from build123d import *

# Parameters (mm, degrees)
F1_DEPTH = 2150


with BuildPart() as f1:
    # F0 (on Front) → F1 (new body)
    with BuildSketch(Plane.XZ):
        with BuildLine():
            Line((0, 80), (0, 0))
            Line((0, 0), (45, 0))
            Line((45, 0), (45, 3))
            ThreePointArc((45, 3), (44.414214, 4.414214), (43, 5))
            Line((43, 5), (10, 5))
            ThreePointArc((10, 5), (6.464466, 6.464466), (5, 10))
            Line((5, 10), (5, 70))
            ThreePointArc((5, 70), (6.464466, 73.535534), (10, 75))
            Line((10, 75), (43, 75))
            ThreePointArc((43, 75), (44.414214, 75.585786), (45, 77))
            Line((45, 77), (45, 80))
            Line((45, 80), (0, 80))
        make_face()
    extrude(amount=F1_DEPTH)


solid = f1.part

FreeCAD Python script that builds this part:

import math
import FreeCAD as App
import Part
import Sketcher
Q = App.Units.Quantity

doc = App.newDocument("Part")
body = doc.addObject("PartDesign::Body", "Body")

# Sketch on XZ plane
sketch1 = body.newObject("Sketcher::SketchObject", "Sketch")
sketch1.AttachmentSupport = (doc.getObject("XZ_Plane"), [""])
sketch1.MapMode = "FlatFace"
sketch1.addGeometry([
    Part.LineSegment(App.Vector(0, 80, 0), App.Vector(0, 0, 0)),  # 0
    Part.LineSegment(App.Vector(0, 0, 0), App.Vector(45, 0, 0)),  # 1
    Part.LineSegment(App.Vector(45, 0, 0), App.Vector(45, 3, 0)),  # 2
    Part.ArcOfCircle(Part.Circle(App.Vector(43.000001, 3.000001, 0), App.Vector(0, 0, 1), 1.999999), math.radians(-0.000043), math.radians(90.000043)),  # 3
    Part.LineSegment(App.Vector(43, 5, 0), App.Vector(10, 5, 0)),  # 4
    Part.ArcOfCircle(Part.Circle(App.Vector(10, 10, 0), App.Vector(0, 0, 1), 5), math.radians(179.999996), math.radians(270.000004)),  # 5
    Part.LineSegment(App.Vector(5, 10, 0), App.Vector(5, 70, 0)),  # 6
    Part.ArcOfCircle(Part.Circle(App.Vector(10, 70, 0), App.Vector(0, 0, 1), 5), math.radians(89.999996), math.radians(180.000004)),  # 7
    Part.LineSegment(App.Vector(10, 75, 0), App.Vector(43, 75, 0)),  # 8
    Part.ArcOfCircle(Part.Circle(App.Vector(43.000001, 76.999999, 0), App.Vector(0, 0, 1), 1.999999), math.radians(-90.000043), math.radians(0.000043)),  # 9
    Part.LineSegment(App.Vector(45, 77, 0), App.Vector(45, 80, 0)),  # 10
    Part.LineSegment(App.Vector(45, 80, 0), App.Vector(0, 80, 0)),  # 11
], False)
sketch1.addConstraint([
    Sketcher.Constraint("Coincident", 0, 2, 1, 1),
    Sketcher.Constraint("Coincident", 1, 2, 2, 1),
    Sketcher.Constraint("Tangent", 2, 2, 3, 1),
    Sketcher.Constraint("Tangent", 3, 2, 4, 1),
    Sketcher.Constraint("Tangent", 4, 2, 5, 2),
    Sketcher.Constraint("Tangent", 5, 1, 6, 1),
    Sketcher.Constraint("Tangent", 6, 2, 7, 2),
    Sketcher.Constraint("Tangent", 7, 1, 8, 1),
    Sketcher.Constraint("Tangent", 8, 2, 9, 1),
    Sketcher.Constraint("Tangent", 9, 2, 10, 1),
    Sketcher.Constraint("Coincident", 10, 2, 11, 1),
    Sketcher.Constraint("Coincident", 11, 2, 0, 1),
    Sketcher.Constraint("Vertical", 0),
    Sketcher.Constraint("Horizontal", 1),
    Sketcher.Constraint("Vertical", 2),
    Sketcher.Constraint("Horizontal", 4),
    Sketcher.Constraint("Vertical", 6),
    Sketcher.Constraint("Horizontal", 8),
    Sketcher.Constraint("Vertical", 10),
    Sketcher.Constraint("Horizontal", 11),
    Sketcher.Constraint("Coincident", 0, 2, -1, 1),
    Sketcher.Constraint("Equal", 5, 7),
    Sketcher.Constraint("Equal", 3, 9),
    Sketcher.Constraint("Vertical", 3, 3, 9, 3),
    Sketcher.Constraint("Equal", 2, 10),
    Sketcher.Constraint("Radius", 3, Q("1.999999 mm")),
    Sketcher.Constraint("Radius", 5, Q("5 mm")),
    Sketcher.Constraint("DistanceX", 1, 1, 1, 2, Q("45 mm")),
    Sketcher.Constraint("DistanceX", 4, 2, 4, 1, Q("33 mm")),
    Sketcher.Constraint("DistanceY", 0, 2, 0, 1, Q("80 mm")),
    Sketcher.Constraint("DistanceY", 2, 1, 2, 2, Q("3 mm")),
])
pad1 = body.newObject("PartDesign::Pad", "Pad")
pad1.Profile = sketch1
pad1.Length = 2150

doc.recompute()
